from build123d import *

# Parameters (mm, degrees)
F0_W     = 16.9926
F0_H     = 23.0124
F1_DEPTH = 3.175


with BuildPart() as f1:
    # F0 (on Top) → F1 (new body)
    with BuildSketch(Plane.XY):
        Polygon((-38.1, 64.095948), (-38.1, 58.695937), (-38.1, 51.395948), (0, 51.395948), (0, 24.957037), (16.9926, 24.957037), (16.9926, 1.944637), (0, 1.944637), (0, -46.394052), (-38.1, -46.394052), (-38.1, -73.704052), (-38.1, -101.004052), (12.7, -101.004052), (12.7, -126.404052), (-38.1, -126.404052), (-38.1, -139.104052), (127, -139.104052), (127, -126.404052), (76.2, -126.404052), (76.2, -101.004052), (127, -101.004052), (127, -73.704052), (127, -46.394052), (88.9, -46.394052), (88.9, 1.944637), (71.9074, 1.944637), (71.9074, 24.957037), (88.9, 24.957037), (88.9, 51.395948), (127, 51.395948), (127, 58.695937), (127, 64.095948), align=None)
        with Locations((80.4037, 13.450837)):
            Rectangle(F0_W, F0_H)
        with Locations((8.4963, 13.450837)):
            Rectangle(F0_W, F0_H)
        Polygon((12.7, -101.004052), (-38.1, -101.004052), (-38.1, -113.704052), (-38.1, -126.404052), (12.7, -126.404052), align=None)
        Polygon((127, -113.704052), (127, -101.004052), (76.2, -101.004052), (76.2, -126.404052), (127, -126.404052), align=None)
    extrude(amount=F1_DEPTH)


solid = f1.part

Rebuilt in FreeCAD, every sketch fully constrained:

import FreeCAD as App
import Part
import Sketcher
Q = App.Units.Quantity


def add_polygon(sketch, points):
    """Adds a closed chain of lines whose ends are joined by coincident constraints."""
    first, n = sketch.GeometryCount, len(points)
    for a, b in zip(points, points[1:] + points[:1]):
        sketch.addGeometry(Part.LineSegment(App.Vector(*a, 0), App.Vector(*b, 0)), False)
    for i in range(n):
        sketch.addConstraint(Sketcher.Constraint("Coincident", first + i, 2, first + (i + 1) % n, 1))

doc = App.newDocument("Part")
body = doc.addObject("PartDesign::Body", "Body")

sketch1 = body.newObject("Sketcher::SketchObject", "Sketch")
sketch1.AttachmentSupport = (doc.getObject("XY_Plane"), [""])
sketch1.MapMode = "FlatFace"
add_polygon(sketch1, [(-38.1, 64.095948), (-38.1, 51.395948), (0, 51.395948), (0, -46.394052), (-38.1, -46.394052), (-38.1, -139.104052), (127, -139.104052), (127, -46.394052), (88.9, -46.394052), (88.9, 51.395948), (127, 51.395948), (127, 64.095948)])
sketch1.addConstraint([
    Sketcher.Constraint("Vertical", 0),
    Sketcher.Constraint("Horizontal", 1),
    Sketcher.Constraint("Vertical", 2),
    Sketcher.Constraint("Horizontal", 3),
    Sketcher.Constraint("Vertical", 4),
    Sketcher.Constraint("Horizontal", 5),
    Sketcher.Constraint("Vertical", 6),
    Sketcher.Constraint("Horizontal", 7),
    Sketcher.Constraint("Vertical", 8),
    Sketcher.Constraint("Horizontal", 9),
    Sketcher.Constraint("Vertical", 10),
    Sketcher.Constraint("Horizontal", 11),
    Sketcher.Constraint("PointOnObject", 1, 2, -2),
    Sketcher.Constraint("Horizontal", 3, 2, 6, 2),
    Sketcher.Constraint("Horizontal", 1, 2, 8, 2),
    Sketcher.Constraint("Vertical", 0, 2, 3, 2),
    Sketcher.Constraint("Vertical", 6, 2, 9, 2),
    Sketcher.Constraint("Equal", 3, 7),
    Sketcher.Constraint("DistanceX", 1, 1, 1, 2, Q("1.5 in")),
    Sketcher.Constraint("DistanceX", 5, 1, 5, 2, Q("6.5 in")),
    Sketcher.Constraint("DistanceY", 0, 2, 0, 1, Q("0.5 in")),
    Sketcher.Constraint("DistanceY", 2, 2, 2, 1, Q("3.85 in")),
    Sketcher.Constraint("DistanceY", 4, 2, 4, 1, Q("3.65 in")),
    Sketcher.Constraint("DistanceY", 4, 2, -1, 1, Q("139.104052 mm")),
])
pad1 = body.newObject("PartDesign::Pad", "Pad")
pad1.Profile = sketch1
pad1.Length = Q("0.125 in")

doc.recompute()
